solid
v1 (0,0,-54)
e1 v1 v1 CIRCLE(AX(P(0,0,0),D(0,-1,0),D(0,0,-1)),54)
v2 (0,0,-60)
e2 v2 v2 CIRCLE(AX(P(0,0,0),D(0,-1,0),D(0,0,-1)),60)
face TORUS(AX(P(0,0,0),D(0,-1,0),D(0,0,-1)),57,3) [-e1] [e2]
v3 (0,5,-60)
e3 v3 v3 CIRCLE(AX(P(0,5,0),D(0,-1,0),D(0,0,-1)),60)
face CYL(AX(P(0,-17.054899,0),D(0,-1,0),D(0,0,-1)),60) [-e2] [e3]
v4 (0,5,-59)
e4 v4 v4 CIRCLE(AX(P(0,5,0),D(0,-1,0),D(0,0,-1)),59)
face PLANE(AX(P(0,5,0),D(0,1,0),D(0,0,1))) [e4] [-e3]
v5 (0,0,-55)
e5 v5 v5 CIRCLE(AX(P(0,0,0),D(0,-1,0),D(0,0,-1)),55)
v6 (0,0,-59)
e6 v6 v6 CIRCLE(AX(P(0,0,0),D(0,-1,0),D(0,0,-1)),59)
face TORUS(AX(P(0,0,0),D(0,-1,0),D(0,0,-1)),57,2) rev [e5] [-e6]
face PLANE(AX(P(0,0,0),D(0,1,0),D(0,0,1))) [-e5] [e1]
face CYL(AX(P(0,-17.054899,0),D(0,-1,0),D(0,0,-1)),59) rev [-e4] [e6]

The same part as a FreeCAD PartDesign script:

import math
import FreeCAD as App
import Part
import Sketcher

doc = App.newDocument("Part")
params = doc.addObject("Spreadsheet::Sheet", "Params")
for row, (alias, value) in enumerate([
    ("sketch1_radius", "2 mm"),
    ("sketch1_radius2", "3 mm"),
    ("sketch1_width", "5 mm"),
    ("revolution_angle", "360 deg"),
], start=1):
    params.set(f"A{row}", alias)
    params.set(f"B{row}", "=" + value)
    params.setAlias(f"B{row}", alias)

body = doc.addObject("PartDesign::Body", "Body")

# Sketch on YZ plane
sketch1 = body.newObject("Sketcher::SketchObject", "Sketch")
sketch1.AttachmentSupport = (doc.getObject("YZ_Plane"), [""])
sketch1.MapMode = "FlatFace"
sketch1.addGeometry([
    Part.ArcOfCircle(Part.Circle(App.Vector(0, 57, 0), App.Vector(0, 0, 1), 2), math.radians(90), math.radians(270)),  # 0
    Part.LineSegment(App.Vector(0, 59, 0), App.Vector(5, 59, 0)),  # 1
    Part.LineSegment(App.Vector(5, 59, 0), App.Vector(5, 60, 0)),  # 2
    Part.LineSegment(App.Vector(5, 60, 0), App.Vector(0, 60, 0)),  # 3
    Part.ArcOfCircle(Part.Circle(App.Vector(0, 57, 0), App.Vector(0, 0, 1), 3), math.radians(90), math.radians(270)),  # 4
    Part.LineSegment(App.Vector(0, 54, 0), App.Vector(0, 55, 0)),  # 5
], False)
sketch1.addConstraint([
    Sketcher.Constraint("Tangent", 0, 1, 1, 1),
    Sketcher.Constraint("Coincident", 1, 2, 2, 1),
    Sketcher.Constraint("Coincident", 2, 2, 3, 1),
    Sketcher.Constraint("Tangent", 3, 2, 4, 1),
    Sketcher.Constraint("Coincident", 4, 2, 5, 1),
    Sketcher.Constraint("Coincident", 5, 2, 0, 2),
    Sketcher.Constraint("Horizontal", 1),
    Sketcher.Constraint("Vertical", 2),
    Sketcher.Constraint("Horizontal", 3),
    Sketcher.Constraint("Vertical", 5),
    Sketcher.Constraint("Coincident", 4, 3, 0, 3),
    Sketcher.Constraint("PointOnObject", 0, 3, -2),
    Sketcher.Constraint("PointOnObject", 4, 2, -2),
    Sketcher.Constraint("Radius", 0, 2.0),
    Sketcher.Constraint("Radius", 4, 3.0),
    Sketcher.Constraint("DistanceX", 1, 1, 1, 2, 5.0),
    Sketcher.Constraint("DistanceY", -1, 1, 0, 3, 57.0),
])
sketch1.setExpression("Constraints[13]", "Params.sketch1_radius")
sketch1.setExpression("Constraints[14]", "Params.sketch1_radius2")
sketch1.setExpression("Constraints[15]", "Params.sketch1_width")
revolution = body.newObject("PartDesign::Revolution", "Revolution")
revolution.Profile = sketch1
revolution.ReferenceAxis = (sketch1, ["H_Axis"])
revolution.setExpression("Angle", "Params.revolution_angle")

doc.recompute()
